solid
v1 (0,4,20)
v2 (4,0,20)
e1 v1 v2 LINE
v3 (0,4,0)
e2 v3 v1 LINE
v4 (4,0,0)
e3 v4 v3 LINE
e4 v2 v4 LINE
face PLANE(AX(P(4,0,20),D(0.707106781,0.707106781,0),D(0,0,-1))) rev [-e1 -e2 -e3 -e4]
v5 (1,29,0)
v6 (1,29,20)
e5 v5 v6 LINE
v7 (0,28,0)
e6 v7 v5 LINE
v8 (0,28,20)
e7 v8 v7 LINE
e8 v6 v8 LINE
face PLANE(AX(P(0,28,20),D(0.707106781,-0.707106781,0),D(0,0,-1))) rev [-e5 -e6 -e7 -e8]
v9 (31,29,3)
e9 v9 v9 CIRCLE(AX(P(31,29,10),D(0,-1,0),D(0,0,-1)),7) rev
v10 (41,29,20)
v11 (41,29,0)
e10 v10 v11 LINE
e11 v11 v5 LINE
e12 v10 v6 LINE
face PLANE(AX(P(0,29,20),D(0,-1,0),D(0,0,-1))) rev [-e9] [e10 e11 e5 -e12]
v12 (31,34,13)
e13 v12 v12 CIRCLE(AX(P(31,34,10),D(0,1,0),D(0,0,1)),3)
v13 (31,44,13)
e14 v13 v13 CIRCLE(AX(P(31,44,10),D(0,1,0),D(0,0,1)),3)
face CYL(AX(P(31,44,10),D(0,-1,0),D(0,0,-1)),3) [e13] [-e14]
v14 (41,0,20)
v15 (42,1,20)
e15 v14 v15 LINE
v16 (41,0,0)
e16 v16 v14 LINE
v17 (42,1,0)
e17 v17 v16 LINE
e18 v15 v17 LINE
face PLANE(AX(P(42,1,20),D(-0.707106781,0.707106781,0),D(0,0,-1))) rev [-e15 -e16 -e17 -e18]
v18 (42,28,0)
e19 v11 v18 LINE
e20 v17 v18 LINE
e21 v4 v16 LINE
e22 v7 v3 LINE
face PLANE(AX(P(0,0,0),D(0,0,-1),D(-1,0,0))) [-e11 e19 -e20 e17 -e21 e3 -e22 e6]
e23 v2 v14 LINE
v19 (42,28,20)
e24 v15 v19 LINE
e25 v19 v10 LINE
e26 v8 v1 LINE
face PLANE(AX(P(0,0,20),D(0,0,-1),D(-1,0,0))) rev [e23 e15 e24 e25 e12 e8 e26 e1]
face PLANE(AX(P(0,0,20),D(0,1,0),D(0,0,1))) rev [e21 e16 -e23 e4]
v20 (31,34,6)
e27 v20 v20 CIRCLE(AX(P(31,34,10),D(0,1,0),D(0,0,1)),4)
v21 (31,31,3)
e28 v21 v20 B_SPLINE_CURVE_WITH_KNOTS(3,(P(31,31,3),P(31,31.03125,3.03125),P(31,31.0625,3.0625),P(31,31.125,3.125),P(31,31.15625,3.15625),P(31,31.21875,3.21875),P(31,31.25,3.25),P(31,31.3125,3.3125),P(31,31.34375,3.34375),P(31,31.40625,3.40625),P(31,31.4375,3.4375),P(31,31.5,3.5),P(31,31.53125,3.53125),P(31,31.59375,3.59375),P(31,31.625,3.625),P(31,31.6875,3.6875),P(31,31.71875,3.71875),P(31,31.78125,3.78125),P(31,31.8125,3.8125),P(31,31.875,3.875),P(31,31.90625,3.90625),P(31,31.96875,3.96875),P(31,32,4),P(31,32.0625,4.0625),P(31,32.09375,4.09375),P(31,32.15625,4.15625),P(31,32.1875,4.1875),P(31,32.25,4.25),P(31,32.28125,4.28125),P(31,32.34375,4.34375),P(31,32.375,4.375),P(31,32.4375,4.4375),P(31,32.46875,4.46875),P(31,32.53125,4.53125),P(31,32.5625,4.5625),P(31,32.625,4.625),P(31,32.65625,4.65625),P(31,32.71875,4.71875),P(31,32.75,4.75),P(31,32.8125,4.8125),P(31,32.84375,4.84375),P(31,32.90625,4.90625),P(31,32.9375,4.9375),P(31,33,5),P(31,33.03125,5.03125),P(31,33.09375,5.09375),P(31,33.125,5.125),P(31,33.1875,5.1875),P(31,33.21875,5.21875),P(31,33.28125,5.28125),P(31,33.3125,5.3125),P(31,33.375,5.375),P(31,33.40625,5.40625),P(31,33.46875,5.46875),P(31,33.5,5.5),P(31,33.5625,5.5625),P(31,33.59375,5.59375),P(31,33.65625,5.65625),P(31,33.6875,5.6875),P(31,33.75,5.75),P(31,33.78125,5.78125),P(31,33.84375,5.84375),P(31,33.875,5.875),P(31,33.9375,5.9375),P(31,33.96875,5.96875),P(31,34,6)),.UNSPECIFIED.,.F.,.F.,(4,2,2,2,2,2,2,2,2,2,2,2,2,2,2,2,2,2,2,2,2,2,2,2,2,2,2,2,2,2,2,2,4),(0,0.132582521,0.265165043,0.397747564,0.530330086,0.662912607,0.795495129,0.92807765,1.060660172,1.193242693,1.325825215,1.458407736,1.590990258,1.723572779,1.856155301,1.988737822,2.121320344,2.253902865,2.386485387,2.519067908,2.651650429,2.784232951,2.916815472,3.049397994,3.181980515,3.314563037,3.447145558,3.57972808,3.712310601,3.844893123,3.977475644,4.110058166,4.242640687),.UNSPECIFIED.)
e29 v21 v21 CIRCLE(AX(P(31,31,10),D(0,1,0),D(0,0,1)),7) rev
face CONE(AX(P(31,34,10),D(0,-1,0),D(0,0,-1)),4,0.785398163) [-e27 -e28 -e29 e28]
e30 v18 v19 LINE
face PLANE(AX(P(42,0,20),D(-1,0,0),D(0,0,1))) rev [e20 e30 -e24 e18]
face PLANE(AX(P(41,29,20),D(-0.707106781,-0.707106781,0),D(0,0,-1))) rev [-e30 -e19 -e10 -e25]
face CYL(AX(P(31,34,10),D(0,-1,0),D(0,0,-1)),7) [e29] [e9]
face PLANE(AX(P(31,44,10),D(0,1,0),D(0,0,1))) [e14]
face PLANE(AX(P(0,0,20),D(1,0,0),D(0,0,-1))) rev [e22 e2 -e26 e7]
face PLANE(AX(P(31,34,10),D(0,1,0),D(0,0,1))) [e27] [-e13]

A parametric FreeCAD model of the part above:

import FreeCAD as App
import Part
import Sketcher
Q = App.Units.Quantity


def edges_at(feature, points):
    """Names of the edges that pass closest to the given points."""
    edges = feature.Shape.Edges
    near = lambda p: min(range(len(edges)), key=lambda i: edges[i].distToShape(Part.Vertex(*p))[0])
    return sorted({f"Edge{near(p) + 1}" for p in points})

doc = App.newDocument("Part")
params = doc.addObject("Spreadsheet::Sheet", "Params")
for row, (alias, value) in enumerate([
    ("sketch1_width", "42 mm"),
    ("sketch1_height", "29 mm"),
    ("pad1_length", "20 mm"),
    ("chamfer_size", "4 mm"),
    ("chamfer2_size", "1 mm"),
    ("chamfer3_size", "1 mm"),
    ("sketch2_diameter", "14 mm"),
    ("pad2_length", "5 mm"),
    ("chamfer4_size", "3 mm"),
    ("sketch3_diameter", "6 mm"),
    ("pad3_length", "10 mm"),
], start=1):
    params.set(f"A{row}", alias)
    params.set(f"B{row}", "=" + value)
    params.setAlias(f"B{row}", alias)

body = doc.addObject("PartDesign::Body", "Body")

# Sketch on XY plane
sketch1 = doc.addObject("Sketcher::SketchObject", "Sketch")
body.addObject(sketch1)
sketch1.AttachmentSupport = (doc.XY_Plane, [""])
sketch1.MapMode = "FlatFace"
sketch1.addGeometry([
    Part.LineSegment(App.Vector(0, 29, 0), App.Vector(0, 0, 0)),
    Part.LineSegment(App.Vector(0, 0, 0), App.Vector(42, 0, 0)),
    Part.LineSegment(App.Vector(42, 0, 0), App.Vector(42, 29, 0)),
    Part.LineSegment(App.Vector(42, 29, 0), App.Vector(0, 29, 0)),
], False)
sketch1.addConstraint([
    Sketcher.Constraint("Coincident", 0, 2, 1, 1),
    Sketcher.Constraint("Coincident", 1, 2, 2, 1),
    Sketcher.Constraint("Coincident", 2, 2, 3, 1),
    Sketcher.Constraint("Coincident", 3, 2, 0, 1),
    Sketcher.Constraint("Vertical", 0),
    Sketcher.Constraint("Horizontal", 1),
    Sketcher.Constraint("Vertical", 2),
    Sketcher.Constraint("Horizontal", 3),
    Sketcher.Constraint("Coincident", 0, 2, -1, 1),
    Sketcher.Constraint("DistanceX", 1, 1, 1, 2, Q("42 mm")),
    Sketcher.Constraint("DistanceY", 0, 2, 0, 1, Q("29 mm")),
])
sketch1.setExpression("Constraints[9]", "Params.sketch1_width")
sketch1.setExpression("Constraints[10]", "Params.sketch1_height")
pad1 = doc.addObject("PartDesign::Pad", "Pad")
body.addObject(pad1)
pad1.Profile = sketch1
pad1.setExpression("Length", "Params.pad1_length")
doc.recompute()

chamfer = doc.addObject("PartDesign::Chamfer", "Chamfer")
body.addObject(chamfer)
chamfer.Base = (pad1, edges_at(pad1, [(0, 0, 10)]))
chamfer.setExpression("Size", "Params.chamfer_size")
doc.recompute()

chamfer2 = doc.addObject("PartDesign::Chamfer", "Chamfer001")
body.addObject(chamfer2)
chamfer2.Base = (chamfer, edges_at(chamfer, [(0, 29, 10), (42, 29, 10)]))
chamfer2.setExpression("Size", "Params.chamfer2_size")
doc.recompute()

chamfer3 = doc.addObject("PartDesign::Chamfer", "Chamfer002")
body.addObject(chamfer3)
chamfer3.Base = (chamfer2, edges_at(chamfer2, [(42, 0, 10)]))
chamfer3.setExpression("Size", "Params.chamfer3_size")

# Sketch on XZ plane
sketch2 = doc.addObject("Sketcher::SketchObject", "Sketch001")
body.addObject(sketch2)
sketch2.AttachmentSupport = (doc.XZ_Plane, [""])
sketch2.MapMode = "FlatFace"
sketch2.AttachmentOffset = App.Placement(App.Vector(0, 0, -29), App.Rotation())
sketch2.addGeometry(Part.Circle(App.Vector(31, 10, 0), App.Vector(0, 0, 1), 7), False)
sketch2.addConstraint([
    Sketcher.Constraint("Diameter", 0, Q("14 mm")),
    Sketcher.Constraint("DistanceX", -1, 1, 0, 3, Q("31 mm")),
    Sketcher.Constraint("DistanceY", -1, 1, 0, 3, Q("10 mm")),
])
sketch2.setExpression("Constraints[0]", "Params.sketch2_diameter")
pad2 = doc.addObject("PartDesign::Pad", "Pad001")
body.addObject(pad2)
pad2.Profile = sketch2
pad2.setExpression("Length", "Params.pad2_length")
pad2.Reversed = True
doc.recompute()

chamfer4 = doc.addObject("PartDesign::Chamfer", "Chamfer003")
body.addObject(chamfer4)
chamfer4.Base = (pad2, edges_at(pad2, [(31, 34, 17)]))
chamfer4.setExpression("Size", "Params.chamfer4_size")

# Sketch on XZ plane
sketch3 = doc.addObject("Sketcher::SketchObject", "Sketch002")
body.addObject(sketch3)
sketch3.AttachmentSupport = (doc.XZ_Plane, [""])
sketch3.MapMode = "FlatFace"
sketch3.AttachmentOffset = App.Placement(App.Vector(0, 0, -34), App.Rotation())
sketch3.addGeometry(Part.Circle(App.Vector(31, 10, 0), App.Vector(0, 0, 1), 3), False)
sketch3.addConstraint([
    Sketcher.Constraint("Diameter", 0, Q("6 mm")),
    Sketcher.Constraint("DistanceX", -1, 1, 0, 3, Q("31 mm")),
    Sketcher.Constraint("DistanceY", -1, 1, 0, 3, Q("10 mm")),
])
sketch3.setExpression("Constraints[0]", "Params.sketch3_diameter")
pad3 = doc.addObject("PartDesign::Pad", "Pad002")
body.addObject(pad3)
pad3.Profile = sketch3
pad3.setExpression("Length", "Params.pad3_length")
pad3.Reversed = True

doc.recompute()
